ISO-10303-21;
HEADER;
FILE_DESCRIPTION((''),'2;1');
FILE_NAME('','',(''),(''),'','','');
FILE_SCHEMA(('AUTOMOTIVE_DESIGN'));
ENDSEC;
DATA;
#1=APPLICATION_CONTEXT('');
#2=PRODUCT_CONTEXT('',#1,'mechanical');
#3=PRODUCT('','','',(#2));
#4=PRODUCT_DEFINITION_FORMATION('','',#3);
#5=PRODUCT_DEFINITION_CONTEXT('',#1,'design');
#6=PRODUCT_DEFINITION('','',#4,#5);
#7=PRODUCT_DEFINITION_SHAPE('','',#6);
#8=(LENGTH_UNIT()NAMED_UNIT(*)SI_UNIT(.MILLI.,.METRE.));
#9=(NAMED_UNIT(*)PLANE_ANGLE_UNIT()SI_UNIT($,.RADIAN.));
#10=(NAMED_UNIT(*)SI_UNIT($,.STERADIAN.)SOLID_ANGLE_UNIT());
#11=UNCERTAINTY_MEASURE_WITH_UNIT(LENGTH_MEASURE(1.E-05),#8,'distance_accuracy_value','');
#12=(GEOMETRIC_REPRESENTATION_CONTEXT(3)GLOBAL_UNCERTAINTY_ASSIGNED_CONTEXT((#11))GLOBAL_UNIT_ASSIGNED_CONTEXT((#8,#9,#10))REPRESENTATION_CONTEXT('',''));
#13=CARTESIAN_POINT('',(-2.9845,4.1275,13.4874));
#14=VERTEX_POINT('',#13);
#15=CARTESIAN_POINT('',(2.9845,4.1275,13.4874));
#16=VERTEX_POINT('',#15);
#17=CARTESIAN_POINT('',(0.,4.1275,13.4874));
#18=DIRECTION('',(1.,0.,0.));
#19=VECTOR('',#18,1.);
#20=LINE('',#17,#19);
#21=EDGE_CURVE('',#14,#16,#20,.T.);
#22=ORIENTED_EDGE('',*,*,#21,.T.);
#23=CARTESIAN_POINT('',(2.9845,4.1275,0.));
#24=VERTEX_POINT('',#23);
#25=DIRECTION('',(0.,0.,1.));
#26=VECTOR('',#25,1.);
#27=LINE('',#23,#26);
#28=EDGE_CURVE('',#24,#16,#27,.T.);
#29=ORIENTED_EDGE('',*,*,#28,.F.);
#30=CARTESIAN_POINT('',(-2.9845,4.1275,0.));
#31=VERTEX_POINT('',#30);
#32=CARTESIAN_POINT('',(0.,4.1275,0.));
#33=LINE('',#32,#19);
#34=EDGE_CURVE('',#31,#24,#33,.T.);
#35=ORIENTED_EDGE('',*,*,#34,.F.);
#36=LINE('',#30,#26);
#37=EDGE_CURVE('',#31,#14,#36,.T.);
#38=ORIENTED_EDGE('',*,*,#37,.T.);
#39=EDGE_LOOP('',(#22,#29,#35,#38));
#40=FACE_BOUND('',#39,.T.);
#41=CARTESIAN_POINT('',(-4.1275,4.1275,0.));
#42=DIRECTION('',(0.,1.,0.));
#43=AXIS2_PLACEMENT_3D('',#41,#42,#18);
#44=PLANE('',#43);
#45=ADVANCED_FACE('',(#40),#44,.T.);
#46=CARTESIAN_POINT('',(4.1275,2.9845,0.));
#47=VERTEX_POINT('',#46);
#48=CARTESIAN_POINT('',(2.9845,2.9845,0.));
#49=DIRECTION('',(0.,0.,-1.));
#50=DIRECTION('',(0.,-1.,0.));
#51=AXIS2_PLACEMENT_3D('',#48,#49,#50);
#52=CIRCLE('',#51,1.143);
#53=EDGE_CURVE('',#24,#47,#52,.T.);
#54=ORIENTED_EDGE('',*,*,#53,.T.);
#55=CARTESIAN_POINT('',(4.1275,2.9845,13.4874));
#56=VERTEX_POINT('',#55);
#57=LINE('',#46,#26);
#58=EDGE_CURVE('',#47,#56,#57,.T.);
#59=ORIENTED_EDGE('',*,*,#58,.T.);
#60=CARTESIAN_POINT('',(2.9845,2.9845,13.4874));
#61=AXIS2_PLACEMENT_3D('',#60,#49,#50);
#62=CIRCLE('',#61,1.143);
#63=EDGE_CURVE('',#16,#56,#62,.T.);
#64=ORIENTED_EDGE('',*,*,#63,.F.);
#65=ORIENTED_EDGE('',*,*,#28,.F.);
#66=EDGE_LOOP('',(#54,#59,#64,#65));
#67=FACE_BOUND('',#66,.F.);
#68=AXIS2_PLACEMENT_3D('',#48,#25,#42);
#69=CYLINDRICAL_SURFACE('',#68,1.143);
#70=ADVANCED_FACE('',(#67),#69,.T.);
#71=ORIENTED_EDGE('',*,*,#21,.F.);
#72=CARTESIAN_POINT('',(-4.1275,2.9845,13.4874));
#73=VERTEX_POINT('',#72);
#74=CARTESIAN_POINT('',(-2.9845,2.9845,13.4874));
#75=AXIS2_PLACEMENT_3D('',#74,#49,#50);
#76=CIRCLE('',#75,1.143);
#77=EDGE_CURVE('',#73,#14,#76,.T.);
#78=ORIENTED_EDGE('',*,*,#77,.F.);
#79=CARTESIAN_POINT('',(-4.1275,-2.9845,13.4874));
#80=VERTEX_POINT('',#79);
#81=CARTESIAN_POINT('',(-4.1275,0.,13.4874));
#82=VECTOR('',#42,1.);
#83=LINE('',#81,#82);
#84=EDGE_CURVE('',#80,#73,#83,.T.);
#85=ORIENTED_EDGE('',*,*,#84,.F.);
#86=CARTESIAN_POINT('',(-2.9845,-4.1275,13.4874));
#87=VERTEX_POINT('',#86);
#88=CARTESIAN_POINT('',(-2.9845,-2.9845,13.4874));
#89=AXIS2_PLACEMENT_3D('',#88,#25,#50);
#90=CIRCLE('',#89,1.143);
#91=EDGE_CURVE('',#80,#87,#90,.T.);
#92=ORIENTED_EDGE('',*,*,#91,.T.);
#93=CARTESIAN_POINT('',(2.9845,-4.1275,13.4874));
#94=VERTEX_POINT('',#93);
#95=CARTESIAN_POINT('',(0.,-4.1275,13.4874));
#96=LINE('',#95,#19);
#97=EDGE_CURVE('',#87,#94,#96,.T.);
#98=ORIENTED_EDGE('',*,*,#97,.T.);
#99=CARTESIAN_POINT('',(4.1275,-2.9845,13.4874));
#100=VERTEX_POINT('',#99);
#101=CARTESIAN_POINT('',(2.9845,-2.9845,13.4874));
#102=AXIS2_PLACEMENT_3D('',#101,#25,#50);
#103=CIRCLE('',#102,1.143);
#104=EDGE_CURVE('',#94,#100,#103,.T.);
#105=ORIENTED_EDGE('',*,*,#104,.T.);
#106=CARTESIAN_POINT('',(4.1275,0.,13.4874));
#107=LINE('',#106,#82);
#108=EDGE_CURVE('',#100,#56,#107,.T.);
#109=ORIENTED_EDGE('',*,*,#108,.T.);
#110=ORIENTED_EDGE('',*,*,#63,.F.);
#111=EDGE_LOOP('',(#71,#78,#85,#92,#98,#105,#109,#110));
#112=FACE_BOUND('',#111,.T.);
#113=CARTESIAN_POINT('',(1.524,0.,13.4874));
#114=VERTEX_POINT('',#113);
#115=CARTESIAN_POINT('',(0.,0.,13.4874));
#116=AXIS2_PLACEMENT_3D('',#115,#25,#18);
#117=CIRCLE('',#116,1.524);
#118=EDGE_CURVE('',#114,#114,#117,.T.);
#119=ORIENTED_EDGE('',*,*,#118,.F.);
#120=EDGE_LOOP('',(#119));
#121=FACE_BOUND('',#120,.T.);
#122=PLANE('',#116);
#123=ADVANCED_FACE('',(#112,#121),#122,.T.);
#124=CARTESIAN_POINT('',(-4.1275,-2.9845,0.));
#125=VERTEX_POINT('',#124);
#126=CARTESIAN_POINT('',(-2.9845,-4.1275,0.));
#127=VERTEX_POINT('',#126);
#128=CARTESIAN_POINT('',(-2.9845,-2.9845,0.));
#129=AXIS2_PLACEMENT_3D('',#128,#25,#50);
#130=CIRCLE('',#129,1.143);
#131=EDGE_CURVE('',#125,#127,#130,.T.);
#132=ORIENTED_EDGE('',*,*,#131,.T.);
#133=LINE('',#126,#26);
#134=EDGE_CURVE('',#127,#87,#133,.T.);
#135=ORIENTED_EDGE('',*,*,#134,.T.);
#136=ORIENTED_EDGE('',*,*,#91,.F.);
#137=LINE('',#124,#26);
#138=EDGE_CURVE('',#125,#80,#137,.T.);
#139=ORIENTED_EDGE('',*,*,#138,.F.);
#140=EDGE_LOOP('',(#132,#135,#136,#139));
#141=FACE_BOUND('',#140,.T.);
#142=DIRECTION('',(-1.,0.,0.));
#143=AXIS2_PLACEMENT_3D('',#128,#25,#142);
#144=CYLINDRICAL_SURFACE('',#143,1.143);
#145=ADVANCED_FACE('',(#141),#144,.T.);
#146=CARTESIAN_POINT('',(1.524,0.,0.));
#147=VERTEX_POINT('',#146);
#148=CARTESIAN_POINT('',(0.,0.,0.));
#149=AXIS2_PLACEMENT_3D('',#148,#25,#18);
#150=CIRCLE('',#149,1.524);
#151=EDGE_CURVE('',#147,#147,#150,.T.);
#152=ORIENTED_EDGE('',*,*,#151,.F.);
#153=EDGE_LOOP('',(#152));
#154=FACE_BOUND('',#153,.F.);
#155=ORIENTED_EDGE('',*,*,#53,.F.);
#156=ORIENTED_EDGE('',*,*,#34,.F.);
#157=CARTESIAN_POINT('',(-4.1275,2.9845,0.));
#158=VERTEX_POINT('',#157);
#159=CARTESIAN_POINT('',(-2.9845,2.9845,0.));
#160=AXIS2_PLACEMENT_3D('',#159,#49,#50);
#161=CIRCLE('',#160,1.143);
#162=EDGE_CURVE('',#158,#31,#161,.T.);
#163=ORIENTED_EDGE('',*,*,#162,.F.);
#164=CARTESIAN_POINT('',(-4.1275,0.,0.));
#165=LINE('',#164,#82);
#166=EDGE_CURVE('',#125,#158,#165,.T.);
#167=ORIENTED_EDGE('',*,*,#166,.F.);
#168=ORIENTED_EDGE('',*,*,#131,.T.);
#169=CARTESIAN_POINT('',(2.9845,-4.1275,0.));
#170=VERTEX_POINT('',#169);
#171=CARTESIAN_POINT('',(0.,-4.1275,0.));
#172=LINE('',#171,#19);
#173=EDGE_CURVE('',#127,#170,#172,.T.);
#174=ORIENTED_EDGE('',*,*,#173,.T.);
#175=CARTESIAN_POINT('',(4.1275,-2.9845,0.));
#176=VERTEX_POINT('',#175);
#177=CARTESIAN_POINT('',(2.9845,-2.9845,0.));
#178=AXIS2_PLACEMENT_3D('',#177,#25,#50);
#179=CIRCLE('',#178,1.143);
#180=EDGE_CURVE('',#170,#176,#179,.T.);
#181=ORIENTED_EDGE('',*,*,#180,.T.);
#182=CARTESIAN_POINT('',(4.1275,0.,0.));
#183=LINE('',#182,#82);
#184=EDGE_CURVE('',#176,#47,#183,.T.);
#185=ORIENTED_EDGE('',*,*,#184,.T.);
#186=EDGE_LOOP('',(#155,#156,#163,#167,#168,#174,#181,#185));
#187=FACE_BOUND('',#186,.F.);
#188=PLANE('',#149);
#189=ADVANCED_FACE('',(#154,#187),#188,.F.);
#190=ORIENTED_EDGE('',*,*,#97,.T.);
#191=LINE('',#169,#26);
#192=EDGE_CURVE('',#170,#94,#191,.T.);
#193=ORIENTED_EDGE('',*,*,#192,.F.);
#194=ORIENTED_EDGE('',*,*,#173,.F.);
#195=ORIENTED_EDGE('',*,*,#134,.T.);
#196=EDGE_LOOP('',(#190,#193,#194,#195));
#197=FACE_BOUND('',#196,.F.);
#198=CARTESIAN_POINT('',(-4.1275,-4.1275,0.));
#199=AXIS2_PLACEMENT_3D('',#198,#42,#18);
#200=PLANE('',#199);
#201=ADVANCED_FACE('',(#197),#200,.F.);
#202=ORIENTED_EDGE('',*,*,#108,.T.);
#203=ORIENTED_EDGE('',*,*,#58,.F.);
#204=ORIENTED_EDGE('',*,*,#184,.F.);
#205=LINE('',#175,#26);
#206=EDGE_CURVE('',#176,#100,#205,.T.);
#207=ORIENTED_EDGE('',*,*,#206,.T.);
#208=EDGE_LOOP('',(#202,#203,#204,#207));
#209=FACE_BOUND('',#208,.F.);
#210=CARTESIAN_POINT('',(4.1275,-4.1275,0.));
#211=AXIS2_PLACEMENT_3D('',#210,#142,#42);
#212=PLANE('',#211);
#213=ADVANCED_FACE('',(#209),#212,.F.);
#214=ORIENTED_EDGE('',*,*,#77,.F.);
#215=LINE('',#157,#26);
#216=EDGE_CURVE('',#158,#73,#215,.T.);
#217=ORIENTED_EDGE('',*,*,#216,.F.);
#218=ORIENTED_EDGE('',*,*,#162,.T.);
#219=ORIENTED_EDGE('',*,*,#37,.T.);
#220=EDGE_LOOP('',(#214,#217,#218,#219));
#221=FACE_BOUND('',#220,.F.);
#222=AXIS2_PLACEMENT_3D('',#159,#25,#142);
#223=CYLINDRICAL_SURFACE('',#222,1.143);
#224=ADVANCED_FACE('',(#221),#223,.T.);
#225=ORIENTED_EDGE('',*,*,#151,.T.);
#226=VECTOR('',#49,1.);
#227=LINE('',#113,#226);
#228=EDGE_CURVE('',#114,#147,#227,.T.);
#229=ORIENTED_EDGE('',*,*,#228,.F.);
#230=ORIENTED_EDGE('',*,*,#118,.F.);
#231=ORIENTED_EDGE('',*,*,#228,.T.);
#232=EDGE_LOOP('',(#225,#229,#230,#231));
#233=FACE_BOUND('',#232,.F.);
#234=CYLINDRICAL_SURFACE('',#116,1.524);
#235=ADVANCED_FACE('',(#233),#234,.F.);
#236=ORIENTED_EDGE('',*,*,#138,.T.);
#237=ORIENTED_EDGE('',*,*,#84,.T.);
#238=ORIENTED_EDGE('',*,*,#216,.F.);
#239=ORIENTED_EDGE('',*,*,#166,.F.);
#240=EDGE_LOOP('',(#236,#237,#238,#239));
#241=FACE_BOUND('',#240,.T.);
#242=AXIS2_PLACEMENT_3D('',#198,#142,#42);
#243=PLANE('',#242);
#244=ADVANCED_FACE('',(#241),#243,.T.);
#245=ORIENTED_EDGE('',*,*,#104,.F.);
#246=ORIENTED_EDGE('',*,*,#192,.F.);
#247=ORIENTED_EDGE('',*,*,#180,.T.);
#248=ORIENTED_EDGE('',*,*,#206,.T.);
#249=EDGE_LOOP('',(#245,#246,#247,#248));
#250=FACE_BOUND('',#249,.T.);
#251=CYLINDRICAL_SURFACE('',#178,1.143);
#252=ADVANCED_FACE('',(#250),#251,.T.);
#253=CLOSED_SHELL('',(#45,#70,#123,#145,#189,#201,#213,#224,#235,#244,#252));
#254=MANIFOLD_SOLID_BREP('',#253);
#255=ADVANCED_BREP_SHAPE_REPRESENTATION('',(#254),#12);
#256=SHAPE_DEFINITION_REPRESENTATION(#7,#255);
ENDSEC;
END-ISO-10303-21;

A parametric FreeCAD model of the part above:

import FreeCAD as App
import Part
import Sketcher
Q = App.Units.Quantity


def edges_at(feature, points):
    """Names of the edges that pass closest to the given points."""
    edges = feature.Shape.Edges
    near = lambda p: min(range(len(edges)), key=lambda i: edges[i].distToShape(Part.Vertex(*p))[0])
    return sorted({f"Edge{near(p) + 1}" for p in points})

doc = App.newDocument("Part")
body = doc.addObject("PartDesign::Body", "Body")

# Sketch on XY plane
sketch1 = doc.addObject("Sketcher::SketchObject", "Sketch")
body.addObject(sketch1)
sketch1.AttachmentSupport = (doc.XY_Plane, [""])
sketch1.MapMode = "FlatFace"
sketch1.addGeometry([
    Part.LineSegment(App.Vector(-4.1275, 4.1275, 0), App.Vector(-4.1275, -4.1275, 0)),
    Part.LineSegment(App.Vector(-4.1275, -4.1275, 0), App.Vector(4.1275, -4.1275, 0)),
    Part.LineSegment(App.Vector(4.1275, -4.1275, 0), App.Vector(4.1275, 4.1275, 0)),
    Part.LineSegment(App.Vector(4.1275, 4.1275, 0), App.Vector(-4.1275, 4.1275, 0)),
], False)
sketch1.addConstraint([
    Sketcher.Constraint("Coincident", 0, 2, 1, 1),
    Sketcher.Constraint("Coincident", 1, 2, 2, 1),
    Sketcher.Constraint("Coincident", 2, 2, 3, 1),
    Sketcher.Constraint("Coincident", 3, 2, 0, 1),
    Sketcher.Constraint("Vertical", 0),
    Sketcher.Constraint("Horizontal", 1),
    Sketcher.Constraint("Vertical", 2),
    Sketcher.Constraint("Horizontal", 3),
    Sketcher.Constraint("Symmetric", 0, 2, 2, 2, -1, 1),
    Sketcher.Constraint("Equal", 3, 0),
    Sketcher.Constraint("DistanceX", 1, 1, 1, 2, Q("0.325 in")),
])
pad1 = doc.addObject("PartDesign::Pad", "Pad")
body.addObject(pad1)
pad1.Profile = sketch1
pad1.Length = Q("0.531 in")

# Sketch on XY plane
sketch2 = doc.addObject("Sketcher::SketchObject", "Sketch001")
body.addObject(sketch2)
sketch2.AttachmentSupport = (doc.XY_Plane, [""])
sketch2.MapMode = "FlatFace"
sketch2.AttachmentOffset = App.Placement(App.Vector(0, 0, 0.531 * 25.4), App.Rotation())
sketch2.addGeometry(Part.Circle(App.Vector(0, 0, 0), App.Vector(0, 0, 1), 1.524), False)
sketch2.addConstraint([
    Sketcher.Constraint("Coincident", 0, 3, -1, 1),
    Sketcher.Constraint("Diameter", 0, Q("0.12 in")),
])
pocket1 = doc.addObject("PartDesign::Pocket", "Pocket")
body.addObject(pocket1)
pocket1.Profile = sketch2
pocket1.Length = Q("0.984 in")
doc.recompute()

fillet = doc.addObject("PartDesign::Fillet", "Fillet")
body.addObject(fillet)
fillet.Base = (pocket1, edges_at(pocket1, [
    (-4.128, 4.128, 6.744),
    (-4.128, -4.128, 6.744),
    (4.128, -4.128, 6.744),
    (4.128, 4.128, 6.744),
]))
fillet.Radius = Q("0.045 in")

doc.recompute()
